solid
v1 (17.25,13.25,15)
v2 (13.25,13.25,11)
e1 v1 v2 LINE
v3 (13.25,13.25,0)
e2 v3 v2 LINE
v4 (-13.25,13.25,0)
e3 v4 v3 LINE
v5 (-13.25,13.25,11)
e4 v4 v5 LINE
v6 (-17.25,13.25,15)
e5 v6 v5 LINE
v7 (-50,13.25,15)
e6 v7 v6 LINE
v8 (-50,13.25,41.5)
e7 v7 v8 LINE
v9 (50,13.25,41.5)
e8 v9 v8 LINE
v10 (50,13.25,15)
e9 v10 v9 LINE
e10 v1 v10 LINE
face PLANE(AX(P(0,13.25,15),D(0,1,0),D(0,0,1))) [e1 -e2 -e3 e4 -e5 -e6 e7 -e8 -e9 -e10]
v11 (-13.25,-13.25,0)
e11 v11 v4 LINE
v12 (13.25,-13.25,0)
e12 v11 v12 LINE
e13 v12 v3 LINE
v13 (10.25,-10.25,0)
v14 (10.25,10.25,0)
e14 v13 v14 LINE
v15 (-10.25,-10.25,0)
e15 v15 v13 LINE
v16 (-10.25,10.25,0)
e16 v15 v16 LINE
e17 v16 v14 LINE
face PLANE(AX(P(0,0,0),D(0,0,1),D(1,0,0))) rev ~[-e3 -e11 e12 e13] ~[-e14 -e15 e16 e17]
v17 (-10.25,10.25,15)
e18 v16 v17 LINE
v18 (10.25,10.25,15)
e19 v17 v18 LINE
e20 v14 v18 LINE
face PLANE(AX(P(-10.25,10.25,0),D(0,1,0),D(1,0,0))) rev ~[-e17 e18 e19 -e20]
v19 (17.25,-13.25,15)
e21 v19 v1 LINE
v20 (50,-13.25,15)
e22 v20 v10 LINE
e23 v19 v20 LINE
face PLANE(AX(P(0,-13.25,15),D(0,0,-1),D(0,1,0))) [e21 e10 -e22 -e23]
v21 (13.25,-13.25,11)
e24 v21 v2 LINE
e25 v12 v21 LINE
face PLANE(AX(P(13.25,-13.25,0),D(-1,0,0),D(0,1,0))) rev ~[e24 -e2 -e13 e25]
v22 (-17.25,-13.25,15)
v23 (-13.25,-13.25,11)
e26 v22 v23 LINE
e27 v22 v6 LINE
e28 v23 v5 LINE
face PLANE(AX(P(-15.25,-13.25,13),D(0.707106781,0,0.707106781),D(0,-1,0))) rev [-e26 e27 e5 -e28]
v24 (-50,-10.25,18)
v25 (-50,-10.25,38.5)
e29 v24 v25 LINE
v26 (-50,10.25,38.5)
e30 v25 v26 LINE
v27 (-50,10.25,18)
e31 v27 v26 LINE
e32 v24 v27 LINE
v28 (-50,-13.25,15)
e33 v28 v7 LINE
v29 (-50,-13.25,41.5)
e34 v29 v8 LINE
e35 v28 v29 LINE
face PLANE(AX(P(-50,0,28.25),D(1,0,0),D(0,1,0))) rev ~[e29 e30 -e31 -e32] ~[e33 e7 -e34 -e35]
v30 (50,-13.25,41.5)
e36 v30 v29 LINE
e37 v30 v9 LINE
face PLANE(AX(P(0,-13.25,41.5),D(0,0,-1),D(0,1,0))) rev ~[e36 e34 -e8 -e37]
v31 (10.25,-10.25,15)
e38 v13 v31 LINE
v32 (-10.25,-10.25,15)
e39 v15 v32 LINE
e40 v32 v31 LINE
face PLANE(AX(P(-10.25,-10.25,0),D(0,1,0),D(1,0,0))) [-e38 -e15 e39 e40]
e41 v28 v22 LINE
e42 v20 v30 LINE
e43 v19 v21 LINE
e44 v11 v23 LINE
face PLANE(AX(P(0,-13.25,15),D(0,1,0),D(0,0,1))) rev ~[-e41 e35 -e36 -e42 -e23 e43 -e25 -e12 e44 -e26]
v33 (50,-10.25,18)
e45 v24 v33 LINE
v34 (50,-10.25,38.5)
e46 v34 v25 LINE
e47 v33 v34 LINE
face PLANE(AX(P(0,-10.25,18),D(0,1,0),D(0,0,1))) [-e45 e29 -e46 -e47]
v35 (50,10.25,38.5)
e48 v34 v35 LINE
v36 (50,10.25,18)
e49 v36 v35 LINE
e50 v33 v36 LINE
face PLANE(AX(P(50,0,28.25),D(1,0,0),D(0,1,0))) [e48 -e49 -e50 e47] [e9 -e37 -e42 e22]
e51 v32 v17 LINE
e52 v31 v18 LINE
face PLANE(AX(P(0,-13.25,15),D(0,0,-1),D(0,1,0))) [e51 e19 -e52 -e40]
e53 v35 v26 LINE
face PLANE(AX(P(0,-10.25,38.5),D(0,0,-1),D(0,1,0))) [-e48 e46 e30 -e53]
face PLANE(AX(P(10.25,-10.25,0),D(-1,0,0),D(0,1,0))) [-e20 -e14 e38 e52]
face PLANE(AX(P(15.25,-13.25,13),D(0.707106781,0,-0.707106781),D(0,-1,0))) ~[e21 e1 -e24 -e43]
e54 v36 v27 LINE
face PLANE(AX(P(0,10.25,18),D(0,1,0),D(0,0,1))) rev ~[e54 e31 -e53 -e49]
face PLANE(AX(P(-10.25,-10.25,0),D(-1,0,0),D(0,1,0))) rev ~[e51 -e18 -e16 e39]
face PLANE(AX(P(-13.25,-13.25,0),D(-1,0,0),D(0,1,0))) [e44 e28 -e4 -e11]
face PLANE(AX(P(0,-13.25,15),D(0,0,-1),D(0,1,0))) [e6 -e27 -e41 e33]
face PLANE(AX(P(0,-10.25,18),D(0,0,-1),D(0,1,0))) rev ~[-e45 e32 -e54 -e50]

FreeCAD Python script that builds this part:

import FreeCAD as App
import Part
import Sketcher
from FreeCAD import Vector
Q = App.Units.Quantity


def edges_at(feature, points):
    """Names of the edges that pass closest to the given points."""
    edges = feature.Shape.Edges
    near = lambda p: min(range(len(edges)), key=lambda i: edges[i].distToShape(Part.Vertex(*p))[0])
    return sorted({f"Edge{near(p) + 1}" for p in points})


def add_polygon(sketch, points):
    """Adds a closed chain of lines whose ends are joined by coincident constraints."""
    first, n = sketch.GeometryCount, len(points)
    for a, b in zip(points, points[1:] + points[:1]):
        sketch.addGeometry(Part.LineSegment(App.Vector(*a, 0), App.Vector(*b, 0)), False)
    for i in range(n):
        sketch.addConstraint(Sketcher.Constraint("Coincident", first + i, 2, first + (i + 1) % n, 1))

doc = App.newDocument("Part")
body = doc.addObject("PartDesign::Body", "Body")

sketch1 = doc.addObject("Sketcher::SketchObject", "Sketch")
body.addObject(sketch1)
sketch1.AttachmentSupport = (doc.XY_Plane, [""])
sketch1.MapMode = "FlatFace"
add_polygon(sketch1, [(-13, 13), (-13, -13), (13, -13), (13, 13)])
add_polygon(sketch1, [(10, -10), (-10, -10), (-10, 10), (10, 10)])
sketch1.addConstraint([
    Sketcher.Constraint("Vertical", 0),
    Sketcher.Constraint("Horizontal", 1),
    Sketcher.Constraint("Vertical", 2),
    Sketcher.Constraint("Horizontal", 3),
    Sketcher.Constraint("Horizontal", 4),
    Sketcher.Constraint("Vertical", 5),
    Sketcher.Constraint("Horizontal", 6),
    Sketcher.Constraint("Vertical", 7),
    Sketcher.Constraint("Symmetric", 0, 2, 2, 2, -1, 1),
    Sketcher.Constraint("Symmetric", 4, 2, 6, 2, -1, 1),
    Sketcher.Constraint("Equal", 3, 0),
    Sketcher.Constraint("Equal", 6, 5),
    Sketcher.Constraint("DistanceX", 1, 1, 1, 2, Q("26.5 mm")),
    Sketcher.Constraint("DistanceX", 4, 2, 4, 1, Q("20.5 mm")),
])
pad1 = doc.addObject("PartDesign::Pad", "Pad")
body.addObject(pad1)
pad1.Profile = sketch1
pad1.Length = 15

sketch2 = doc.addObject("Sketcher::SketchObject", "Sketch001")
body.addObject(sketch2)
sketch2.AttachmentSupport = (doc.YZ_Plane, [""])
sketch2.MapMode = "FlatFace"
add_polygon(sketch2, [(-13, 42), (-13, 15), (13, 15), (13, 42)])
add_polygon(sketch2, [(10, 18), (-10, 18), (-10, 38), (10, 38)])
sketch2.addConstraint([
    Sketcher.Constraint("Vertical", 0),
    Sketcher.Constraint("Horizontal", 1),
    Sketcher.Constraint("Vertical", 2),
    Sketcher.Constraint("Horizontal", 3),
    Sketcher.Constraint("Horizontal", 4),
    Sketcher.Constraint("Vertical", 5),
    Sketcher.Constraint("Horizontal", 6),
    Sketcher.Constraint("Vertical", 7),
    Sketcher.Constraint("Equal", 3, 0),
    Sketcher.Constraint("Equal", 6, 5),
    Sketcher.Constraint("DistanceX", 1, 1, 1, 2, Q("26.5 mm")),
    Sketcher.Constraint("DistanceX", 4, 2, 4, 1, Q("20.5 mm")),
    Sketcher.Constraint("DistanceY", -1, 1, 0, 2, Q("15 mm")),
    Sketcher.Constraint("DistanceY", -1, 1, 4, 2, Q("18 mm")),
    Sketcher.Constraint("DistanceX", 0, 2, 4, 2, Q("3 mm")),
    Sketcher.Constraint("DistanceX", 0, 2, -1, 1, Q("13.25 mm")),
])
pad2 = doc.addObject("PartDesign::Pad", "Pad001")
body.addObject(pad2)
pad2.Profile = sketch2
pad2.Length = 100
pad2.Midplane = True
doc.recompute()

chamfer = doc.addObject("PartDesign::Chamfer", "Chamfer")
body.addObject(chamfer)
chamfer.Base = (pad2, edges_at(pad2, [(13.25, 0, 15), (-13.25, 0, 15)]))
chamfer.Size = 4

doc.recompute()
